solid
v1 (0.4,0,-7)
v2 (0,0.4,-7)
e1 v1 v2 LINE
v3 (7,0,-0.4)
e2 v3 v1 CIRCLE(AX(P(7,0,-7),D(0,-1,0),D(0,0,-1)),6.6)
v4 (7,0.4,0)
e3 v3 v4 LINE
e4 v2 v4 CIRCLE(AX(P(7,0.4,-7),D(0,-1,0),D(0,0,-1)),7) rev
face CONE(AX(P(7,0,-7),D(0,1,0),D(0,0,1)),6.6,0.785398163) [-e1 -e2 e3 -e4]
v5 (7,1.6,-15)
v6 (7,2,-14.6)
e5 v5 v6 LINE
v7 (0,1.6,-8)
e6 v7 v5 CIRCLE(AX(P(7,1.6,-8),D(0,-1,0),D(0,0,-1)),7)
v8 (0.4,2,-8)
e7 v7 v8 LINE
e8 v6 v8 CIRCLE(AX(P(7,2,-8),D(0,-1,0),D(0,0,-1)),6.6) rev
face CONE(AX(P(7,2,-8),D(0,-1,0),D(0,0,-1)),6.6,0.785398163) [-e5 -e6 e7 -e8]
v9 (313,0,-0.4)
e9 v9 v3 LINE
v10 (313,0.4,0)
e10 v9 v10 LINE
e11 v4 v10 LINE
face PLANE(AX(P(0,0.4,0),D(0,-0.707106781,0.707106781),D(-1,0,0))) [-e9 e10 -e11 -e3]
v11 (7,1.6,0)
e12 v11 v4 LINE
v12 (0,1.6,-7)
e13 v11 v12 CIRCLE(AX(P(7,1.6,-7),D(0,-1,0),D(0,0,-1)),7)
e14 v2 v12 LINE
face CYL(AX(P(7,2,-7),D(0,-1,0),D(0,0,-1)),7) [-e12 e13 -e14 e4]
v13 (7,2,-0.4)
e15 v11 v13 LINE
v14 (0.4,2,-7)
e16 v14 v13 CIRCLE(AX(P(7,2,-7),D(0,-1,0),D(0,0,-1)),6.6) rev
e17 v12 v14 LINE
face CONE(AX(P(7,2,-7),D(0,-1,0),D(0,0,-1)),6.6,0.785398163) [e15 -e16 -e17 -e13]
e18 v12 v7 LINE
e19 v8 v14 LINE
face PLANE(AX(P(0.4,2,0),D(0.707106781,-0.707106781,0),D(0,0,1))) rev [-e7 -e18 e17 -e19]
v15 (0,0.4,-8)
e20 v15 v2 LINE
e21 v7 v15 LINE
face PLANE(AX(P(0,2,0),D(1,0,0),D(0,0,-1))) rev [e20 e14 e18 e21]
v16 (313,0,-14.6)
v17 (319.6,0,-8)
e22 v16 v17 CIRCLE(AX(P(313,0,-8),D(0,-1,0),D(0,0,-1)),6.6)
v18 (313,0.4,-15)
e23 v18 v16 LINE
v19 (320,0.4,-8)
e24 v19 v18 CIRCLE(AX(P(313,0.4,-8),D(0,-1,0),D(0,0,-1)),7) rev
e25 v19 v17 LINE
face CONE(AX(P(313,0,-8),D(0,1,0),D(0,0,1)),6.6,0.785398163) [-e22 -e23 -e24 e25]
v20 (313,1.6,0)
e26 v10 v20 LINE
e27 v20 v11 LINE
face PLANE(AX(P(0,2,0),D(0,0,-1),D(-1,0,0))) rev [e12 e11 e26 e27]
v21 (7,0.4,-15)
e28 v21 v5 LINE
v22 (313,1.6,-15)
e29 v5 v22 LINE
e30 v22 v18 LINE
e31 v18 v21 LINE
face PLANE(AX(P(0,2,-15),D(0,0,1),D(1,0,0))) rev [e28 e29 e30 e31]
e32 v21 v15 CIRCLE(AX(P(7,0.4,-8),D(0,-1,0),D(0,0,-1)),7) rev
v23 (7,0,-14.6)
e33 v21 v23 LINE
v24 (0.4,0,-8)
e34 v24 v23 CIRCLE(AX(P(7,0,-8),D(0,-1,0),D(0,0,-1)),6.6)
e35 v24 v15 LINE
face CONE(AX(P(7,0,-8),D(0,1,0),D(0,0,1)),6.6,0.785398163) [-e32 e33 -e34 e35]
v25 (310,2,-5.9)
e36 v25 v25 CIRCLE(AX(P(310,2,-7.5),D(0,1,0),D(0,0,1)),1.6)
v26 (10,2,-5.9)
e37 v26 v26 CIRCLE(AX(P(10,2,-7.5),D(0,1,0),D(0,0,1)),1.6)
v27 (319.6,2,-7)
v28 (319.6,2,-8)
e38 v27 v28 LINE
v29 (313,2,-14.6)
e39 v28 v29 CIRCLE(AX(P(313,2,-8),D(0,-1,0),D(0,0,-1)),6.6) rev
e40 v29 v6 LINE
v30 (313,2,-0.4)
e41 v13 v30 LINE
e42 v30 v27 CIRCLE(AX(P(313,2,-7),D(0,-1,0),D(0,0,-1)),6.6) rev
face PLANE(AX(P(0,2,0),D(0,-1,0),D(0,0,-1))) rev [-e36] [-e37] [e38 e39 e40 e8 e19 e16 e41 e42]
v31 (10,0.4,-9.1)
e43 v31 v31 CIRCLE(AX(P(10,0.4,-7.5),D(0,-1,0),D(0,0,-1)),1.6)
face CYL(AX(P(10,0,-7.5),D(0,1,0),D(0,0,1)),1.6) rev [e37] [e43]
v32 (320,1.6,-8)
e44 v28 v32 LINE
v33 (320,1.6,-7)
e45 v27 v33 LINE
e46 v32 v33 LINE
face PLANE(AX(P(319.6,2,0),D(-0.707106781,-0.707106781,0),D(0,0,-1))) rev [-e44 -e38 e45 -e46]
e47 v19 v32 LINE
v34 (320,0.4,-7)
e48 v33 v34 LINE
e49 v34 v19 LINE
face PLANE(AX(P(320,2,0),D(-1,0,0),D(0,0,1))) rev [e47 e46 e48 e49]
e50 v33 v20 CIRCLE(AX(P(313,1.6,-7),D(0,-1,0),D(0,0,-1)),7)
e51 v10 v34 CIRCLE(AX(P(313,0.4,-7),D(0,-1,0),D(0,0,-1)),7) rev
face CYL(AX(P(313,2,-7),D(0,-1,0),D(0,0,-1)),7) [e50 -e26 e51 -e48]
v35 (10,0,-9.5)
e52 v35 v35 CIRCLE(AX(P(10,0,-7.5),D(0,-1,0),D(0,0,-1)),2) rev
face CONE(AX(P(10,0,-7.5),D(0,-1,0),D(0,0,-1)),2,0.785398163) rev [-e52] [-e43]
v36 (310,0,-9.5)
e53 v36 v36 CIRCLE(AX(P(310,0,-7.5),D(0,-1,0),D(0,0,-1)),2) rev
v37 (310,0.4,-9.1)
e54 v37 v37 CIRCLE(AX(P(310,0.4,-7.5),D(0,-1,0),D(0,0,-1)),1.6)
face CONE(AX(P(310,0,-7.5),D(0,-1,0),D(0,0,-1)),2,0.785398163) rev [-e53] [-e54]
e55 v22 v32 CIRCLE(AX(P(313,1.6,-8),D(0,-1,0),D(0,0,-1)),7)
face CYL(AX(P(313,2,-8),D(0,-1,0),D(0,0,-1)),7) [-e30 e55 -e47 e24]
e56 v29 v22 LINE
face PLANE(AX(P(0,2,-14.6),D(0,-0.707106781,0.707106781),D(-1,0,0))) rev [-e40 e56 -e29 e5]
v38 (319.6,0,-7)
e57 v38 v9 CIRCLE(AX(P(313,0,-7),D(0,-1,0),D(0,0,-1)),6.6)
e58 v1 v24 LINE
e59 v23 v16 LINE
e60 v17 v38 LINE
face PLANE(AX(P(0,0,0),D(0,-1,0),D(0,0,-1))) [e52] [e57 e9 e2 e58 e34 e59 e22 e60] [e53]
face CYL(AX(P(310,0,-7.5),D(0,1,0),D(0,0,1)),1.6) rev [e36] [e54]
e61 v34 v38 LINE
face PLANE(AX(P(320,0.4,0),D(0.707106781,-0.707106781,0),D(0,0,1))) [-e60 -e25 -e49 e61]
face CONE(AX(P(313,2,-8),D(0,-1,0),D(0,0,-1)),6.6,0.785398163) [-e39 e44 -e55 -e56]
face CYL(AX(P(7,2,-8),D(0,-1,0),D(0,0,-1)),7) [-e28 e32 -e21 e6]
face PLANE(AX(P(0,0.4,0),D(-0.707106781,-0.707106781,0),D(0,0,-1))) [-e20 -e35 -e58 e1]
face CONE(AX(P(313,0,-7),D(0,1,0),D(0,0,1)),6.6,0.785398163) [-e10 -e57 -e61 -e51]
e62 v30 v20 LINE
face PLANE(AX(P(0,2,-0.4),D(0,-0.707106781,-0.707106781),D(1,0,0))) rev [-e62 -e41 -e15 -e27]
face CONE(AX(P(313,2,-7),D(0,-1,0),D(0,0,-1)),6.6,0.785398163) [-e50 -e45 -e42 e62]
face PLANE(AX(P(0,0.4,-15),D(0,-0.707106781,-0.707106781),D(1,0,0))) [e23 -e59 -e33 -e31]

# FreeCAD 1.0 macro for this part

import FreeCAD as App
import Part
import Sketcher


def edges_at(feature, points):
    """Names of the edges that pass closest to the given points."""
    edges = feature.Shape.Edges
    near = lambda p: min(range(len(edges)), key=lambda i: edges[i].distToShape(Part.Vertex(*p))[0])
    return sorted({f"Edge{near(p) + 1}" for p in points})

doc = App.newDocument("Part")
body = doc.addObject("PartDesign::Body", "Body")

# Sketch on XZ plane
sketch1 = body.newObject("Sketcher::SketchObject", "Sketch")
sketch1.AttachmentSupport = (doc.getObject("XZ_Plane"), [""])
sketch1.MapMode = "FlatFace"
sketch1.addGeometry([
    Part.LineSegment(App.Vector(0, -15, 0), App.Vector(0, 0, 0)),
    Part.LineSegment(App.Vector(0, 0, 0), App.Vector(320, 0, 0)),
    Part.LineSegment(App.Vector(320, 0, 0), App.Vector(320, -15, 0)),
    Part.LineSegment(App.Vector(320, -15, 0), App.Vector(0, -15, 0)),
], False)
sketch1.addConstraint([
    Sketcher.Constraint("Coincident", 0, 2, 1, 1),
    Sketcher.Constraint("Coincident", 1, 2, 2, 1),
    Sketcher.Constraint("Coincident", 2, 2, 3, 1),
    Sketcher.Constraint("Coincident", 3, 2, 0, 1),
    Sketcher.Constraint("Vertical", 0),
    Sketcher.Constraint("Horizontal", 1),
    Sketcher.Constraint("Vertical", 2),
    Sketcher.Constraint("Horizontal", 3),
    Sketcher.Constraint("Coincident", 0, 2, -1, 1),
    Sketcher.Constraint("DistanceX", 1, 1, 1, 2, 320.0),
    Sketcher.Constraint("DistanceY", 0, 1, 0, 2, 15.0),
])
pad1 = body.newObject("PartDesign::Pad", "Pad")
pad1.Profile = sketch1
pad1.Length = 2
pad1.Reversed = True

# Sketch on XZ plane
sketch2 = body.newObject("Sketcher::SketchObject", "Sketch001")
sketch2.AttachmentSupport = (doc.getObject("XZ_Plane"), [""])
sketch2.MapMode = "FlatFace"
sketch2.AttachmentOffset = App.Placement(App.Vector(0, 0, -2), App.Rotation())
sketch2.addGeometry([
    Part.Circle(App.Vector(10, -7.5, 0), App.Vector(0, 0, 1), 1.6),
    Part.Circle(App.Vector(310, -7.5, 0), App.Vector(0, 0, 1), 1.6),
], False)
sketch2.addConstraint([
    Sketcher.Constraint("Equal", 0, 1),
    Sketcher.Constraint("Horizontal", 0, 3, 1, 3),
    Sketcher.Constraint("Diameter", 0, 3.2),
    Sketcher.Constraint("DistanceX", -1, 1, 0, 3, 10.0),
    Sketcher.Constraint("DistanceX", -1, 1, 1, 3, 310.0),
    Sketcher.Constraint("DistanceY", 0, 3, -1, 1, 7.5),
])
pocket1 = body.newObject("PartDesign::Pocket", "Pocket")
pocket1.Profile = sketch2
pocket1.Length = 2
pocket1.Reversed = True
doc.recompute()

fillet = body.newObject("PartDesign::Fillet", "Fillet")
fillet.Base = (pocket1, edges_at(pocket1, [
    (0, 1, -15),
    (320, 1, -15),
    (320, 1, 0),
    (0, 1, 0),
]))
fillet.Radius = 7
doc.recompute()

chamfer = body.newObject("PartDesign::Chamfer", "Chamfer")
chamfer.Base = (fillet, edges_at(fillet, [
    (10, 0, -9.1),
    (310, 0, -9.1),
    (160, 0, -15),
    (160, 2, -15),
    (0, 0, -7.5),
    (320, 0, -7.5),
    (160, 0, 0),
    (2.05, 0, -12.95),
    (2.05, 0, -2.05),
    (317.95, 0, -2.05),
    (317.95, 0, -12.95),
    (320, 2, -7.5),
    (0, 2, -7.5),
    (160, 2, 0),
    (2.05, 2, -12.95),
    (2.05, 2, -2.05),
    (317.95, 2, -2.05),
    (317.95, 2, -12.95),
]))
chamfer.Size = 0.4

doc.recompute()
